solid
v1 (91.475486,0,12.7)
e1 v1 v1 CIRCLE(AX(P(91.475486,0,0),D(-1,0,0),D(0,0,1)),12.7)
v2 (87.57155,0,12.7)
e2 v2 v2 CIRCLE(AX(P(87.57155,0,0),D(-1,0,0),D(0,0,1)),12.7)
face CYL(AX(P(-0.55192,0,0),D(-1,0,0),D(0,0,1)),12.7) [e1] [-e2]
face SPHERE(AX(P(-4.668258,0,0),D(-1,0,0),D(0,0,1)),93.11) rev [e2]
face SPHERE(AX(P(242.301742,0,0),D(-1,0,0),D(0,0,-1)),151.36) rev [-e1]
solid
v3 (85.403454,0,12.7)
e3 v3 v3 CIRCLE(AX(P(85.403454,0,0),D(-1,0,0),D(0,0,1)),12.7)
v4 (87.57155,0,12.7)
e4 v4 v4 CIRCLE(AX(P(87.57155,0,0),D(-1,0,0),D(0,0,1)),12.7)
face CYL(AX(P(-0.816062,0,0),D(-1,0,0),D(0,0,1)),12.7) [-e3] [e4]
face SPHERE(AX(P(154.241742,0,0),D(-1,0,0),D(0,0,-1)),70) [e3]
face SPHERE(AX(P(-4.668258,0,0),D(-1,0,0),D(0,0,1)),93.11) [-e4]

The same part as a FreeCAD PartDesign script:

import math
import FreeCAD as App
import Part
import Sketcher
from FreeCAD import Vector

doc = App.newDocument("Part")
body = doc.addObject("PartDesign::Body", "Body")

sketch1 = body.newObject("Sketcher::SketchObject", "Sketch")
sketch1.AttachmentSupport = (doc.getObject("XZ_Plane"), [""])
sketch1.MapMode = "FlatFace"
sketch1.addGeometry(Part.ArcOfCircle(Part.Circle(Vector(154.2, 0, 0), Vector(0, 0, 1), 70), math.radians(180), math.radians(190.45)), False)
sketch1.addGeometry(Part.LineSegment(Vector(84.2, 0, 0), Vector(88.4, 0, 0)), False)
sketch1.addGeometry(Part.ArcOfCircle(Part.Circle(Vector(-4.7, 0, 0), Vector(0, 0, 1), 93.1), math.radians(-7.84), math.radians(0)), False)
sketch1.addGeometry(Part.LineSegment(Vector(87.6, -12.7, 0), Vector(85.4, -12.7, 0)), False)
sketch1.addConstraint(Sketcher.Constraint("Coincident", 0, 1, 1, 1))
sketch1.addConstraint(Sketcher.Constraint("Coincident", 1, 2, 2, 2))
sketch1.addConstraint(Sketcher.Constraint("Coincident", 2, 1, 3, 1))
sketch1.addConstraint(Sketcher.Constraint("Coincident", 3, 2, 0, 2))
sketch1.addConstraint(Sketcher.Constraint("Horizontal", 1))
sketch1.addConstraint(Sketcher.Constraint("Horizontal", 3))
sketch1.addConstraint(Sketcher.Constraint("PointOnObject", 0, 3, -1))
sketch1.addConstraint(Sketcher.Constraint("PointOnObject", 2, 3, -1))
sketch1.addConstraint(Sketcher.Constraint("PointOnObject", 0, 1, -1))
sketch1.addConstraint(Sketcher.Constraint("Radius", 0, 70.0))
sketch1.addConstraint(Sketcher.Constraint("Radius", 2, 93.11))
sketch1.addConstraint(Sketcher.Constraint("DistanceX", 1, 1, 1, 2, 4.2))
sketch1.addConstraint(Sketcher.Constraint("DistanceY", 2, 1, -1, 1, 12.7))
sketch1.addConstraint(Sketcher.Constraint("DistanceX", -1, 1, 2, 1, 87.57155))
revolution = body.newObject("PartDesign::Revolution", "Revolution")
revolution.Profile = sketch1
revolution.ReferenceAxis = (sketch1, ["H_Axis"])
revolution.Angle = 360
body2 = doc.addObject("PartDesign::Body", "Body001")

sketch2 = body2.newObject("Sketcher::SketchObject", "Sketch001")
sketch2.AttachmentSupport = (doc.getObject("XZ_Plane001"), [""])
sketch2.MapMode = "FlatFace"
sketch2.addGeometry(Part.LineSegment(Vector(91.5, -12.7, 0), Vector(87.6, -12.7, 0)), False)
sketch2.addGeometry(Part.ArcOfCircle(Part.Circle(Vector(-4.7, 0, 0), Vector(0, 0, 1), 93.1), math.radians(-7.84), math.radians(0)), False)
sketch2.addGeometry(Part.LineSegment(Vector(88.4, 0, 0), Vector(90.9, 0, 0)), False)
sketch2.addGeometry(Part.ArcOfCircle(Part.Circle(Vector(242.3, 0, 0), Vector(0, 0, 1), 151.4), math.radians(180), math.radians(184.81)), False)
sketch2.addConstraint(Sketcher.Constraint("Coincident", 0, 2, 1, 1))
sketch2.addConstraint(Sketcher.Constraint("Coincident", 1, 2, 2, 1))
sketch2.addConstraint(Sketcher.Constraint("Coincident", 2, 2, 3, 1))
sketch2.addConstraint(Sketcher.Constraint("Coincident", 3, 2, 0, 1))
sketch2.addConstraint(Sketcher.Constraint("Horizontal", 0))
sketch2.addConstraint(Sketcher.Constraint("Horizontal", 2))
sketch2.addConstraint(Sketcher.Constraint("PointOnObject", 1, 3, -1))
sketch2.addConstraint(Sketcher.Constraint("PointOnObject", 3, 3, -1))
sketch2.addConstraint(Sketcher.Constraint("PointOnObject", 1, 2, -1))
sketch2.addConstraint(Sketcher.Constraint("Radius", 1, 93.11))
sketch2.addConstraint(Sketcher.Constraint("Radius", 3, 151.36))
sketch2.addConstraint(Sketcher.Constraint("DistanceX", 2, 1, 2, 2, 2.5))
sketch2.addConstraint(Sketcher.Constraint("DistanceY", 0, 2, -1, 1, 12.7))
sketch2.addConstraint(Sketcher.Constraint("DistanceX", -1, 1, 0, 2, 87.57155))
revolution2 = body2.newObject("PartDesign::Revolution", "Revolution001")
revolution2.Profile = sketch2
revolution2.ReferenceAxis = (sketch2, ["H_Axis"])
revolution2.Angle = 360

doc.recompute()
